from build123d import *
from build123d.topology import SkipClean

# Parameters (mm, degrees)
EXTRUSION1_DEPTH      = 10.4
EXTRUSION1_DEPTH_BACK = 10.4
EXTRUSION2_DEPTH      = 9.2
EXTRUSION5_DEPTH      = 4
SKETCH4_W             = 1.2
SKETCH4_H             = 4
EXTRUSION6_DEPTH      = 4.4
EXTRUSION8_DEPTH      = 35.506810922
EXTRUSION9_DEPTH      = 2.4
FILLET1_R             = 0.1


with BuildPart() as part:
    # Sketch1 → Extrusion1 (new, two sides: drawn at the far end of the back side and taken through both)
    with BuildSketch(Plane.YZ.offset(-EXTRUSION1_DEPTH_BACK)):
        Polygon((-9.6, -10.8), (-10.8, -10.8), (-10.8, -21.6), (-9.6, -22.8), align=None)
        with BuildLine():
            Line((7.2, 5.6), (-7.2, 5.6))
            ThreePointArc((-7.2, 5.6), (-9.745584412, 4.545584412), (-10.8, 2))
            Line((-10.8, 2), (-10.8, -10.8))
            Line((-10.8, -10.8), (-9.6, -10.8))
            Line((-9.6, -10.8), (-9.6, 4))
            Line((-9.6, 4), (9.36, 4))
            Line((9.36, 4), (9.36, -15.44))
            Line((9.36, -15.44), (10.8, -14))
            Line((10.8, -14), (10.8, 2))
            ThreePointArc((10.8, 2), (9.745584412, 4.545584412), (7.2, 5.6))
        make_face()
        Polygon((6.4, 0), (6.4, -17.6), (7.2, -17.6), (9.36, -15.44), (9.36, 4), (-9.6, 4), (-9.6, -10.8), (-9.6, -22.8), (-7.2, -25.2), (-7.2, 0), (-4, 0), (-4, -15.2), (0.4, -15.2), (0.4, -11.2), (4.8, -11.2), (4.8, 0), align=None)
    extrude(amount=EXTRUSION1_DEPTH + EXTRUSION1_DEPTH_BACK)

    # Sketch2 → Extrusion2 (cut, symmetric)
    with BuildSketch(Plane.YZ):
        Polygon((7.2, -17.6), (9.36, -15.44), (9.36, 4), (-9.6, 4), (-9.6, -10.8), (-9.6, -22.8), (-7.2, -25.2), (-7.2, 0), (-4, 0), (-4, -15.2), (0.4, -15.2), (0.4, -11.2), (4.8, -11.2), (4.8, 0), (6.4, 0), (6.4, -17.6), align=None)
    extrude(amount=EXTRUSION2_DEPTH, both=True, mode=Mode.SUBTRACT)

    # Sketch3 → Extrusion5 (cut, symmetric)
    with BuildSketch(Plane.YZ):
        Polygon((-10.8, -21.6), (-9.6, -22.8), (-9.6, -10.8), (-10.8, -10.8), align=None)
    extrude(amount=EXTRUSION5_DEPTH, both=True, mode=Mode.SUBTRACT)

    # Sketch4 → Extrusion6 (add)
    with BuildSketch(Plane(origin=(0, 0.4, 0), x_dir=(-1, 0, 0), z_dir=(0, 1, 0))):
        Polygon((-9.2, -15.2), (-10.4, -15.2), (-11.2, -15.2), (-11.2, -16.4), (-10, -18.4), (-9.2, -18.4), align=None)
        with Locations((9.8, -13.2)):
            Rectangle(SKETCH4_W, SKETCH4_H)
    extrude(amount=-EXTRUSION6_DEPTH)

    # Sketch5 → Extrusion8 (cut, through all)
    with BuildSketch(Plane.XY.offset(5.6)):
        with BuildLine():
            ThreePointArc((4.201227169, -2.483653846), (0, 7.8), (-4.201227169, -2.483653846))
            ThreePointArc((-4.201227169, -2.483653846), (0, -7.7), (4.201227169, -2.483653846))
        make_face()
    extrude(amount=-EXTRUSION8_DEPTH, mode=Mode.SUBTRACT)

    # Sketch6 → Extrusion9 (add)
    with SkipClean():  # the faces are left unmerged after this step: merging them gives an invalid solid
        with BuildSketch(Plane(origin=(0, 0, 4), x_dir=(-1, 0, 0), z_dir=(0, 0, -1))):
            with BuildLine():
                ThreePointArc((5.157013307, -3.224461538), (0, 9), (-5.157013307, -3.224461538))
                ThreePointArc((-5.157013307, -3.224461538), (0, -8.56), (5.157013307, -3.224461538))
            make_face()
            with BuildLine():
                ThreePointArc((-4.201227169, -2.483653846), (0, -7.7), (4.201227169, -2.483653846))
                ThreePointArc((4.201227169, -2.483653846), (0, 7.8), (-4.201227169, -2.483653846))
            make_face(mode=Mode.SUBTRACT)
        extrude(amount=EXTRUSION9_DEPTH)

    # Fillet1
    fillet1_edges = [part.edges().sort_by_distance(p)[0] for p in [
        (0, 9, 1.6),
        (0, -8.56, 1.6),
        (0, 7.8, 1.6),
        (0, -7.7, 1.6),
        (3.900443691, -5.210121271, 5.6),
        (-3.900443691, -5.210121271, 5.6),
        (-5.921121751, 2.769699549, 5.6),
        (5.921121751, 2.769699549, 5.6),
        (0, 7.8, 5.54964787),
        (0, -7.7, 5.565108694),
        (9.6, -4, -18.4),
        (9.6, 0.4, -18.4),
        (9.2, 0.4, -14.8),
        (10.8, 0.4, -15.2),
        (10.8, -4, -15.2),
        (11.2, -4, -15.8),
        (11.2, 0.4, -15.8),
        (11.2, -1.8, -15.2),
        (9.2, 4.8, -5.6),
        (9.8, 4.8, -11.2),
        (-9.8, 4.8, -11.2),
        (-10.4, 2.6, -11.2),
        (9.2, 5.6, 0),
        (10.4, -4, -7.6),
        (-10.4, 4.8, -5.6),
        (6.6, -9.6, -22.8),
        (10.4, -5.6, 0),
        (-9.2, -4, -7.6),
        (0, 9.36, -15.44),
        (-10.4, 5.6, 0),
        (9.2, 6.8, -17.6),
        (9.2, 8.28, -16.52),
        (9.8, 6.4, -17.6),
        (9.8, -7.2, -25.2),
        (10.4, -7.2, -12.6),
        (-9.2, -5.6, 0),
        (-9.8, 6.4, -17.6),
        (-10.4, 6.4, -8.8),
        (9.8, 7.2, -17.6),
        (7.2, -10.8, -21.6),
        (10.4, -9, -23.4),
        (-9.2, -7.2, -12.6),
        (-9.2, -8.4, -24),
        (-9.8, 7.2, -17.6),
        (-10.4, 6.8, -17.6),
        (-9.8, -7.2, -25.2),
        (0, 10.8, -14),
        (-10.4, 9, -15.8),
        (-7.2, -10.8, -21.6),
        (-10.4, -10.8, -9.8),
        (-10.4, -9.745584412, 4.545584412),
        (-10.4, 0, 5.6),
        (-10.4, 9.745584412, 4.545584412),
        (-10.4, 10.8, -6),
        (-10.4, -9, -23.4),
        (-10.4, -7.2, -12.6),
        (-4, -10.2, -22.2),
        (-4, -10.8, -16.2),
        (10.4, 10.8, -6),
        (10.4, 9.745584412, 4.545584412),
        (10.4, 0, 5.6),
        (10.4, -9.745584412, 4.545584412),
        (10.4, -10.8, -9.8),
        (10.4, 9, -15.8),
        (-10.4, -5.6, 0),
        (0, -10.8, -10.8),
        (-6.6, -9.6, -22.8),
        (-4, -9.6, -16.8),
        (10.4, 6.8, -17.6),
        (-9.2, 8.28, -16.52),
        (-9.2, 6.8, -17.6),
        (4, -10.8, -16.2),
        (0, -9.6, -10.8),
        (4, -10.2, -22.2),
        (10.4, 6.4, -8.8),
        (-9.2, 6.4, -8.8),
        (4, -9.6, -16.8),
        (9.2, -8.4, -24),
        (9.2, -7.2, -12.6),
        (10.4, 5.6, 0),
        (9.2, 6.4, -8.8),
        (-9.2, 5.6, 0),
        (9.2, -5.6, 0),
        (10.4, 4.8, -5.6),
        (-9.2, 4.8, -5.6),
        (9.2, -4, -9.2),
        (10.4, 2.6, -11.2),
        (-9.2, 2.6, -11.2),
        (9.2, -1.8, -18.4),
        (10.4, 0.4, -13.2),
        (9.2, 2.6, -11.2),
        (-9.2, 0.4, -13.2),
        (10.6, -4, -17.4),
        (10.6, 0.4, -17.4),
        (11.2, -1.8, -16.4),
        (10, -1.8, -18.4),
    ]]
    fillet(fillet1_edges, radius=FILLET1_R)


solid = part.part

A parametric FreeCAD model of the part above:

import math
import FreeCAD as App
import Part
import Sketcher
from FreeCAD import Vector
Q = App.Units.Quantity


def edges_at(feature, points):
    """Names of the edges that pass closest to the given points."""
    edges = feature.Shape.Edges
    near = lambda p: min(range(len(edges)), key=lambda i: edges[i].distToShape(Part.Vertex(*p))[0])
    return sorted({f"Edge{near(p) + 1}" for p in points})

doc = App.newDocument("Part")
params = doc.addObject("Spreadsheet::Sheet", "Params")
for row, (alias, value) in enumerate([
    ("sketch1_radius", "3.6 mm"),
    ("sketch1_height", "4 mm"),
    ("sketch1_height2", "16 mm"),
    ("sketch1_width", "3.2 mm"),
    ("sketch1_width2", "4.4 mm"),
    ("pad1_length", "10.4 mm"),
    ("pad1_length2", "10.4 mm"),
    ("sketch2_height", "4 mm"),
    ("sketch2_width", "3.2 mm"),
    ("sketch2_width2", "4.4 mm"),
    ("sketch2_width3", "1.6 mm"),
    ("sketch2_width4", "0.8 mm"),
    ("pocket1_length", "18.4 mm"),
    ("sketch3_height", "12 mm"),
    ("sketch3_width", "1.2 mm"),
    ("pocket2_length", "8 mm"),
    ("sketch4_width", "2 mm"),
    ("sketch4_height", "4 mm"),
    ("sketch4_width2", "0.8 mm"),
    ("sketch4_width3", "1.2 mm"),
    ("sketch4_height2", "3.2 mm"),
    ("pad2_length", "4.4 mm"),
    ("sketch5_radius", "6 mm"),
    ("sketch5_radius2", "4.3 mm"),
    ("sketch6_radius", "6 mm"),
    ("sketch6_radius2", "7.2 mm"),
    ("sketch6_radius3", "4.3 mm"),
    ("sketch6_radius4", "5.16 mm"),
    ("pad3_length", "2.4 mm"),
    ("fillet_radius", "0.1 mm"),
], start=1):
    params.set(f"A{row}", alias)
    params.set(f"B{row}", "=" + value)
    params.setAlias(f"B{row}", alias)

body = doc.addObject("PartDesign::Body", "Body")

sketch1 = body.newObject("Sketcher::SketchObject", "Sketch")
sketch1.AttachmentSupport = (doc.getObject("YZ_Plane"), [""])
sketch1.MapMode = "FlatFace"
sketch1.addGeometry([
    Part.LineSegment(Vector(-10.8, -21.6, 0), Vector(-7.2, -25.2, 0)),
    Part.LineSegment(Vector(-7.2, -25.2, 0), Vector(-7.2, 0, 0)),
    Part.LineSegment(Vector(-7.2, 0, 0), Vector(-4, 0, 0)),
    Part.LineSegment(Vector(-4, 0, 0), Vector(-4, -15.2, 0)),
    Part.LineSegment(Vector(-4, -15.2, 0), Vector(0.4, -15.2, 0)),
    Part.LineSegment(Vector(0.4, -15.2, 0), Vector(0.4, -11.2, 0)),
    Part.LineSegment(Vector(0.4, -11.2, 0), Vector(4.8, -11.2, 0)),
    Part.LineSegment(Vector(4.8, -11.2, 0), Vector(4.8, 0, 0)),
    Part.LineSegment(Vector(4.8, 0, 0), Vector(6.4, 0, 0)),
    Part.LineSegment(Vector(6.4, 0, 0), Vector(6.4, -17.6, 0)),
    Part.LineSegment(Vector(6.4, -17.6, 0), Vector(7.2, -17.6, 0)),
    Part.LineSegment(Vector(7.2, -17.6, 0), Vector(10.8, -14, 0)),
    Part.LineSegment(Vector(10.8, -14, 0), Vector(10.8, 2, 0)),
    Part.ArcOfCircle(Part.Circle(Vector(7.2, 2, 0), Vector(0, 0, 1), 3.6), math.radians(0), math.radians(90)),
    Part.LineSegment(Vector(7.2, 5.6, 0), Vector(-7.2, 5.6, 0)),
    Part.ArcOfCircle(Part.Circle(Vector(-7.2, 2, 0), Vector(0, 0, 1), 3.6), math.radians(90), math.radians(180)),
    Part.LineSegment(Vector(-10.8, 2, 0), Vector(-10.8, -21.6, 0)),
], False)
sketch1.addConstraint([
    Sketcher.Constraint("Coincident", 0, 2, 1, 1),
    Sketcher.Constraint("Coincident", 1, 2, 2, 1),
    Sketcher.Constraint("Coincident", 2, 2, 3, 1),
    Sketcher.Constraint("Coincident", 3, 2, 4, 1),
    Sketcher.Constraint("Coincident", 4, 2, 5, 1),
    Sketcher.Constraint("Coincident", 5, 2, 6, 1),
    Sketcher.Constraint("Coincident", 6, 2, 7, 1),
    Sketcher.Constraint("Coincident", 7, 2, 8, 1),
    Sketcher.Constraint("Coincident", 8, 2, 9, 1),
    Sketcher.Constraint("Coincident", 9, 2, 10, 1),
    Sketcher.Constraint("Coincident", 10, 2, 11, 1),
    Sketcher.Constraint("Coincident", 11, 2, 12, 1),
    Sketcher.Constraint("Tangent", 12, 2, 13, 1),
    Sketcher.Constraint("Tangent", 13, 2, 14, 1),
    Sketcher.Constraint("Tangent", 14, 2, 15, 1),
    Sketcher.Constraint("Tangent", 15, 2, 16, 1),
    Sketcher.Constraint("Coincident", 16, 2, 0, 1),
    Sketcher.Constraint("Vertical", 1),
    Sketcher.Constraint("Horizontal", 2),
    Sketcher.Constraint("Vertical", 3),
    Sketcher.Constraint("Horizontal", 4),
    Sketcher.Constraint("Vertical", 5),
    Sketcher.Constraint("Horizontal", 6),
    Sketcher.Constraint("Vertical", 7),
    Sketcher.Constraint("Horizontal", 8),
    Sketcher.Constraint("Vertical", 9),
    Sketcher.Constraint("Horizontal", 10),
    Sketcher.Constraint("Vertical", 12),
    Sketcher.Constraint("Horizontal", 14),
    Sketcher.Constraint("Vertical", 16),
    Sketcher.Constraint("Equal", 13, 15),
    Sketcher.Constraint("PointOnObject", 1, 2, -1),
    Sketcher.Constraint("PointOnObject", 7, 2, -1),
    Sketcher.Constraint("Perpendicular", 0, 11),
    Sketcher.Constraint("Vertical", 15, 3, 0, 2),
    Sketcher.Constraint("Vertical", 13, 3, 10, 2),
    Sketcher.Constraint("Equal", 4, 6),
    Sketcher.Constraint("Equal", 0, 11),
    Sketcher.Constraint("Radius", 13, Q("3.6 mm")),
    Sketcher.Constraint("DistanceY", 5, 1, 5, 2, Q("4 mm")),
    Sketcher.Constraint("DistanceY", 12, 1, 12, 2, Q("16 mm")),
    Sketcher.Constraint("DistanceX", 2, 1, 2, 2, Q("3.2 mm")),
    Sketcher.Constraint("DistanceX", 4, 1, 4, 2, Q("4.4 mm")),
    Sketcher.Constraint("DistanceX", 8, 1, 8, 2, Q("1.6 mm")),
    Sketcher.Constraint("DistanceX", 10, 1, 10, 2, Q("0.8 mm")),
    Sketcher.Constraint("DistanceY", 1, 1, 1, 2, Q("25.2 mm")),
    Sketcher.Constraint("DistanceY", 3, 2, 3, 1, Q("15.2 mm")),
    Sketcher.Constraint("DistanceY", 9, 2, 9, 1, Q("17.6 mm")),
    Sketcher.Constraint("DistanceX", 2, 2, -1, 1, Q("4 mm")),
])
sketch1.setExpression("Constraints[38]", "Params.sketch1_radius")
sketch1.setExpression("Constraints[39]", "Params.sketch1_height")
sketch1.setExpression("Constraints[40]", "Params.sketch1_height2")
sketch1.setExpression("Constraints[41]", "Params.sketch1_width")
sketch1.setExpression("Constraints[42]", "Params.sketch1_width2")
pad1 = body.newObject("PartDesign::Pad", "Pad")
pad1.Profile = sketch1
pad1.Type = "TwoLengths"
pad1.setExpression("Length", "Params.pad1_length")
pad1.setExpression("Length2", "Params.pad1_length2")

sketch2 = body.newObject("Sketcher::SketchObject", "Sketch001")
sketch2.AttachmentSupport = (doc.getObject("YZ_Plane"), [""])
sketch2.MapMode = "FlatFace"
sketch2.addGeometry([
    Part.LineSegment(Vector(7.2, -17.6, 0), Vector(9.4, -15.4, 0)),
    Part.LineSegment(Vector(9.4, -15.4, 0), Vector(9.4, 4, 0)),
    Part.LineSegment(Vector(9.4, 4, 0), Vector(-9.6, 4, 0)),
    Part.LineSegment(Vector(-9.6, 4, 0), Vector(-9.6, -22.8, 0)),
    Part.LineSegment(Vector(-9.6, -22.8, 0), Vector(-7.2, -25.2, 0)),
    Part.LineSegment(Vector(-7.2, -25.2, 0), Vector(-7.2, 0, 0)),
    Part.LineSegment(Vector(-7.2, 0, 0), Vector(-4, 0, 0)),
    Part.LineSegment(Vector(-4, 0, 0), Vector(-4, -15.2, 0)),
    Part.LineSegment(Vector(-4, -15.2, 0), Vector(0.4, -15.2, 0)),
    Part.LineSegment(Vector(0.4, -15.2, 0), Vector(0.4, -11.2, 0)),
    Part.LineSegment(Vector(0.4, -11.2, 0), Vector(4.8, -11.2, 0)),
    Part.LineSegment(Vector(4.8, -11.2, 0), Vector(4.8, 0, 0)),
    Part.LineSegment(Vector(4.8, 0, 0), Vector(6.4, 0, 0)),
    Part.LineSegment(Vector(6.4, 0, 0), Vector(6.4, -17.6, 0)),
    Part.LineSegment(Vector(6.4, -17.6, 0), Vector(7.2, -17.6, 0)),
], False)
sketch2.addConstraint([
    Sketcher.Constraint("Coincident", 0, 2, 1, 1),
    Sketcher.Constraint("Coincident", 1, 2, 2, 1),
    Sketcher.Constraint("Coincident", 2, 2, 3, 1),
    Sketcher.Constraint("Coincident", 3, 2, 4, 1),
    Sketcher.Constraint("Coincident", 4, 2, 5, 1),
    Sketcher.Constraint("Coincident", 5, 2, 6, 1),
    Sketcher.Constraint("Coincident", 6, 2, 7, 1),
    Sketcher.Constraint("Coincident", 7, 2, 8, 1),
    Sketcher.Constraint("Coincident", 8, 2, 9, 1),
    Sketcher.Constraint("Coincident", 9, 2, 10, 1),
    Sketcher.Constraint("Coincident", 10, 2, 11, 1),
    Sketcher.Constraint("Coincident", 11, 2, 12, 1),
    Sketcher.Constraint("Coincident", 12, 2, 13, 1),
    Sketcher.Constraint("Coincident", 13, 2, 14, 1),
    Sketcher.Constraint("Coincident", 14, 2, 0, 1),
    Sketcher.Constraint("Vertical", 1),
    Sketcher.Constraint("Horizontal", 2),
    Sketcher.Constraint("Vertical", 3),
    Sketcher.Constraint("Vertical", 5),
    Sketcher.Constraint("Horizontal", 6),
    Sketcher.Constraint("Vertical", 7),
    Sketcher.Constraint("Horizontal", 8),
    Sketcher.Constraint("Vertical", 9),
    Sketcher.Constraint("Horizontal", 10),
    Sketcher.Constraint("Vertical", 11),
    Sketcher.Constraint("Horizontal", 12),
    Sketcher.Constraint("Vertical", 13),
    Sketcher.Constraint("Horizontal", 14),
    Sketcher.Constraint("PointOnObject", 5, 2, -1),
    Sketcher.Constraint("PointOnObject", 11, 2, -1),
    Sketcher.Constraint("Perpendicular", 0, 4),
    Sketcher.Constraint("Equal", 8, 10),
    Sketcher.Constraint("DistanceY", 9, 1, 9, 2, Q("4 mm")),
    Sketcher.Constraint("Angle", 0, Q("45 deg")),
    Sketcher.Constraint("DistanceX", 6, 1, 6, 2, Q("3.2 mm")),
    Sketcher.Constraint("DistanceX", 8, 1, 8, 2, Q("4.4 mm")),
    Sketcher.Constraint("DistanceX", 12, 1, 12, 2, Q("1.6 mm")),
    Sketcher.Constraint("DistanceX", 14, 1, 14, 2, Q("0.8 mm")),
    Sketcher.Constraint("DistanceY", 3, 2, 3, 1, Q("26.8 mm")),
    Sketcher.Constraint("DistanceY", 5, 1, 5, 2, Q("25.2 mm")),
    Sketcher.Constraint("DistanceY", 7, 2, 7, 1, Q("15.2 mm")),
    Sketcher.Constraint("DistanceY", 13, 2, 13, 1, Q("17.6 mm")),
    Sketcher.Constraint("DistanceY", -1, 1, 1, 2, Q("4 mm")),
    Sketcher.Constraint("DistanceX", 6, 2, -1, 1, Q("4 mm")),
    Sketcher.Constraint("DistanceX", 2, 2, 2, 1, Q("18.96 mm")),
])
sketch2.setExpression("Constraints[32]", "Params.sketch2_height")
sketch2.setExpression("Constraints[34]", "Params.sketch2_width")
sketch2.setExpression("Constraints[35]", "Params.sketch2_width2")
sketch2.setExpression("Constraints[36]", "Params.sketch2_width3")
sketch2.setExpression("Constraints[37]", "Params.sketch2_width4")
pocket1 = body.newObject("PartDesign::Pocket", "Pocket")
pocket1.Profile = sketch2
pocket1.setExpression("Length", "Params.pocket1_length")
pocket1.Midplane = True

sketch3 = body.newObject("Sketcher::SketchObject", "Sketch002")
sketch3.AttachmentSupport = (doc.getObject("YZ_Plane"), [""])
sketch3.MapMode = "FlatFace"
sketch3.addGeometry([
    Part.LineSegment(Vector(-10.8, -21.6, 0), Vector(-9.6, -22.8, 0)),
    Part.LineSegment(Vector(-9.6, -22.8, 0), Vector(-9.6, -10.8, 0)),
    Part.LineSegment(Vector(-9.6, -10.8, 0), Vector(-10.8, -10.8, 0)),
    Part.LineSegment(Vector(-10.8, -10.8, 0), Vector(-10.8, -21.6, 0)),
], False)
sketch3.addConstraint([
    Sketcher.Constraint("Coincident", 0, 2, 1, 1),
    Sketcher.Constraint("Coincident", 1, 2, 2, 1),
    Sketcher.Constraint("Coincident", 2, 2, 3, 1),
    Sketcher.Constraint("Coincident", 3, 2, 0, 1),
    Sketcher.Constraint("Vertical", 1),
    Sketcher.Constraint("Horizontal", 2),
    Sketcher.Constraint("Vertical", 3),
    Sketcher.Constraint("DistanceY", 1, 1, 1, 2, Q("12 mm")),
    Sketcher.Constraint("Angle", 0, Q("-45 deg")),
    Sketcher.Constraint("DistanceX", 2, 2, 2, 1, Q("1.2 mm")),
    Sketcher.Constraint("DistanceX", 0, 2, -1, 1, Q("9.6 mm")),
    Sketcher.Constraint("DistanceY", 0, 2, -1, 1, Q("22.8 mm")),
])
sketch3.setExpression("Constraints[7]", "Params.sketch3_height")
sketch3.setExpression("Constraints[9]", "Params.sketch3_width")
pocket2 = body.newObject("PartDesign::Pocket", "Pocket001")
pocket2.Profile = sketch3
pocket2.setExpression("Length", "Params.pocket2_length")
pocket2.Midplane = True

sketch4 = body.newObject("Sketcher::SketchObject", "Sketch003")
sketch4.AttachmentSupport = (doc.getObject("XZ_Plane"), [""])
sketch4.MapMode = "FlatFace"
sketch4.AttachmentOffset = App.Placement(Vector(0, 0, -0.4), App.Rotation())
sketch4.addGeometry([
    Part.LineSegment(Vector(9.2, -15.2, 0), Vector(11.2, -15.2, 0)),
    Part.LineSegment(Vector(11.2, -15.2, 0), Vector(11.2, -16.4, 0)),
    Part.LineSegment(Vector(11.2, -16.4, 0), Vector(10, -18.4, 0)),
    Part.LineSegment(Vector(10, -18.4, 0), Vector(9.2, -18.4, 0)),
    Part.LineSegment(Vector(9.2, -18.4, 0), Vector(9.2, -15.2, 0)),
    Part.LineSegment(Vector(-9.2, -11.2, 0), Vector(-9.2, -15.2, 0)),
    Part.LineSegment(Vector(-9.2, -15.2, 0), Vector(-10.4, -15.2, 0)),
    Part.LineSegment(Vector(-10.4, -15.2, 0), Vector(-10.4, -11.2, 0)),
    Part.LineSegment(Vector(-10.4, -11.2, 0), Vector(-9.2, -11.2, 0)),
], False)
sketch4.addConstraint([
    Sketcher.Constraint("Coincident", 0, 2, 1, 1),
    Sketcher.Constraint("Coincident", 1, 2, 2, 1),
    Sketcher.Constraint("Coincident", 2, 2, 3, 1),
    Sketcher.Constraint("Coincident", 3, 2, 4, 1),
    Sketcher.Constraint("Coincident", 4, 2, 0, 1),
    Sketcher.Constraint("Coincident", 5, 2, 6, 1),
    Sketcher.Constraint("Coincident", 6, 2, 7, 1),
    Sketcher.Constraint("Coincident", 7, 2, 8, 1),
    Sketcher.Constraint("Coincident", 8, 2, 5, 1),
    Sketcher.Constraint("Horizontal", 0),
    Sketcher.Constraint("Vertical", 1),
    Sketcher.Constraint("Horizontal", 3),
    Sketcher.Constraint("Vertical", 4),
    Sketcher.Constraint("Vertical", 5),
    Sketcher.Constraint("Horizontal", 6),
    Sketcher.Constraint("Vertical", 7),
    Sketcher.Constraint("Horizontal", 8),
    Sketcher.Constraint("Symmetric", 4, 2, 5, 2, -2),
    Sketcher.Constraint("Equal", 8, 1),
    Sketcher.Constraint("DistanceX", 0, 1, 0, 2, Q("2 mm")),
    Sketcher.Constraint("DistanceY", 5, 2, 5, 1, Q("4 mm")),
    Sketcher.Constraint("DistanceX", 3, 2, 3, 1, Q("0.8 mm")),
    Sketcher.Constraint("DistanceX", 6, 2, 6, 1, Q("1.2 mm")),
    Sketcher.Constraint("DistanceY", 4, 1, 4, 2, Q("3.2 mm")),
    Sketcher.Constraint("DistanceX", -1, 1, 2, 2, Q("10 mm")),
    Sketcher.Constraint("DistanceY", 0, 2, -1, 1, Q("15.2 mm")),
])
sketch4.setExpression("Constraints[19]", "Params.sketch4_width")
sketch4.setExpression("Constraints[20]", "Params.sketch4_height")
sketch4.setExpression("Constraints[21]", "Params.sketch4_width2")
sketch4.setExpression("Constraints[22]", "Params.sketch4_width3")
sketch4.setExpression("Constraints[23]", "Params.sketch4_height2")
pad2 = body.newObject("PartDesign::Pad", "Pad001")
pad2.Profile = sketch4
pad2.setExpression("Length", "Params.pad2_length")

sketch5 = body.newObject("Sketcher::SketchObject", "Sketch004")
sketch5.AttachmentSupport = (doc.getObject("XY_Plane"), [""])
sketch5.MapMode = "FlatFace"
sketch5.AttachmentOffset = App.Placement(Vector(0, 0, 5.6), App.Rotation())
sketch5.addGeometry([
    Part.ArcOfCircle(Part.Circle(Vector(0, 1.8, 0), Vector(0, 0, 1), 6), math.radians(-46), math.radians(226)),
    Part.ArcOfCircle(Part.Circle(Vector(0, -3.4, 0), Vector(0, 0, 1), 4.3), math.radians(168), math.radians(372)),
], False)
sketch5.addConstraint([
    Sketcher.Constraint("Coincident", 0, 1, 1, 2),
    Sketcher.Constraint("Coincident", 1, 1, 0, 2),
    Sketcher.Constraint("Symmetric", 0, 1, 1, 1, -2),
    Sketcher.Constraint("Radius", 0, Q("6 mm")),
    Sketcher.Constraint("Radius", 1, Q("4.3 mm")),
    Sketcher.Constraint("DistanceY", -1, 1, 0, 3, Q("1.8 mm")),
    Sketcher.Constraint("DistanceY", 1, 3, -1, 1, Q("3.4 mm")),
])
sketch5.setExpression("Constraints[3]", "Params.sketch5_radius")
sketch5.setExpression("Constraints[4]", "Params.sketch5_radius2")
pocket3 = body.newObject("PartDesign::Pocket", "Pocket002")
pocket3.Profile = sketch5
pocket3.Type = "ThroughAll"

sketch6 = body.newObject("Sketcher::SketchObject", "Sketch005")
sketch6.AttachmentSupport = (doc.getObject("XY_Plane"), [""])
sketch6.MapMode = "FlatFace"
sketch6.AttachmentOffset = App.Placement(Vector(0, 0, 4), App.Rotation())
sketch6.addGeometry([
    Part.ArcOfCircle(Part.Circle(Vector(0, 1.8, 0), Vector(0, 0, 1), 7.2), math.radians(-44), math.radians(224)),
    Part.ArcOfCircle(Part.Circle(Vector(0, -3.4, 0), Vector(0, 0, 1), 5.2), math.radians(178), math.radians(362)),
    Part.ArcOfCircle(Part.Circle(Vector(0, -3.4, 0), Vector(0, 0, 1), 4.3), math.radians(168), math.radians(372)),
    Part.ArcOfCircle(Part.Circle(Vector(0, 1.8, 0), Vector(0, 0, 1), 6), math.radians(-46), math.radians(226)),
], False)
sketch6.addConstraint([
    Sketcher.Constraint("Coincident", 0, 1, 1, 2),
    Sketcher.Constraint("Coincident", 1, 1, 0, 2),
    Sketcher.Constraint("Coincident", 2, 1, 3, 2),
    Sketcher.Constraint("Coincident", 3, 1, 2, 2),
    Sketcher.Constraint("Coincident", 2, 3, 1, 3),
    Sketcher.Constraint("Coincident", 3, 3, 0, 3),
    Sketcher.Constraint("Symmetric", 0, 1, 1, 1, -2),
    Sketcher.Constraint("Radius", 3, Q("6 mm")),
    Sketcher.Constraint("Radius", 0, Q("7.2 mm")),
    Sketcher.Constraint("Radius", 2, Q("4.3 mm")),
    Sketcher.Constraint("Radius", 1, Q("5.16 mm")),
    Sketcher.Constraint("DistanceY", -1, 1, 0, 3, Q("1.8 mm")),
    Sketcher.Constraint("DistanceY", 1, 3, -1, 1, Q("3.4 mm")),
])
sketch6.setExpression("Constraints[7]", "Params.sketch6_radius")
sketch6.setExpression("Constraints[8]", "Params.sketch6_radius2")
sketch6.setExpression("Constraints[9]", "Params.sketch6_radius3")
sketch6.setExpression("Constraints[10]", "Params.sketch6_radius4")
pad3 = body.newObject("PartDesign::Pad", "Pad002")
pad3.Profile = sketch6
pad3.setExpression("Length", "Params.pad3_length")
pad3.Reversed = True
doc.recompute()

fillet = body.newObject("PartDesign::Fillet", "Fillet")
fillet.Base = (pad3, edges_at(pad3, [
    (0, 9, 1.6),
    (0, -8.56, 1.6),
    (0, 7.8, 1.6),
    (0, -7.7, 1.6),
    (3.9, -5.21, 5.6),
    (-3.9, -5.21, 5.6),
    (-5.921, 2.77, 5.6),
    (5.921, 2.77, 5.6),
    (0, 7.8, 5.55),
    (0, -7.7, 5.565),
    (9.6, -4, -18.4),
    (9.6, 0.4, -18.4),
    (9.2, 0.4, -14.8),
    (10.8, 0.4, -15.2),
    (10.8, -4, -15.2),
    (11.2, -4, -15.8),
    (11.2, 0.4, -15.8),
    (11.2, -1.8, -15.2),
    (9.2, 4.8, -5.6),
    (9.8, 4.8, -11.2),
    (-9.8, 4.8, -11.2),
    (-10.4, 2.6, -11.2),
    (9.2, 5.6, 0),
    (10.4, -4, -7.6),
    (-10.4, 4.8, -5.6),
    (6.6, -9.6, -22.8),
    (10.4, -5.6, 0),
    (-9.2, -4, -7.6),
    (0, 9.36, -15.44),
    (-10.4, 5.6, 0),
    (9.2, 6.8, -17.6),
    (9.2, 8.28, -16.52),
    (9.8, 6.4, -17.6),
    (9.8, -7.2, -25.2),
    (10.4, -7.2, -12.6),
    (-9.2, -5.6, 0),
    (-9.8, 6.4, -17.6),
    (-10.4, 6.4, -8.8),
    (9.8, 7.2, -17.6),
    (7.2, -10.8, -21.6),
    (10.4, -9, -23.4),
    (-9.2, -7.2, -12.6),
    (-9.2, -8.4, -24),
    (-9.8, 7.2, -17.6),
    (-10.4, 6.8, -17.6),
    (-9.8, -7.2, -25.2),
    (0, 10.8, -14),
    (-10.4, 9, -15.8),
    (-7.2, -10.8, -21.6),
    (-10.4, -10.8, -9.8),
    (-10.4, -9.746, 4.546),
    (-10.4, 0, 5.6),
    (-10.4, 9.746, 4.546),
    (-10.4, 10.8, -6),
    (-10.4, -9, -23.4),
    (-10.4, -7.2, -12.6),
    (-4, -10.2, -22.2),
    (-4, -10.8, -16.2),
    (10.4, 10.8, -6),
    (10.4, 9.746, 4.546),
    (10.4, 0, 5.6),
    (10.4, -9.746, 4.546),
    (10.4, -10.8, -9.8),
    (10.4, 9, -15.8),
    (-10.4, -5.6, 0),
    (0, -10.8, -10.8),
    (-6.6, -9.6, -22.8),
    (-4, -9.6, -16.8),
    (10.4, 6.8, -17.6),
    (-9.2, 8.28, -16.52),
    (-9.2, 6.8, -17.6),
    (4, -10.8, -16.2),
    (0, -9.6, -10.8),
    (4, -10.2, -22.2),
    (10.4, 6.4, -8.8),
    (-9.2, 6.4, -8.8),
    (4, -9.6, -16.8),
    (9.2, -8.4, -24),
    (9.2, -7.2, -12.6),
    (10.4, 5.6, 0),
    (9.2, 6.4, -8.8),
    (-9.2, 5.6, 0),
    (9.2, -5.6, 0),
    (10.4, 4.8, -5.6),
    (-9.2, 4.8, -5.6),
    (9.2, -4, -9.2),
    (10.4, 2.6, -11.2),
    (-9.2, 2.6, -11.2),
    (9.2, -1.8, -18.4),
    (10.4, 0.4, -13.2),
    (9.2, 2.6, -11.2),
    (-9.2, 0.4, -13.2),
    (10.6, -4, -17.4),
    (10.6, 0.4, -17.4),
    (11.2, -1.8, -16.4),
    (10, -1.8, -18.4),
]))
fillet.setExpression("Radius", "Params.fillet_radius")

doc.recompute()
